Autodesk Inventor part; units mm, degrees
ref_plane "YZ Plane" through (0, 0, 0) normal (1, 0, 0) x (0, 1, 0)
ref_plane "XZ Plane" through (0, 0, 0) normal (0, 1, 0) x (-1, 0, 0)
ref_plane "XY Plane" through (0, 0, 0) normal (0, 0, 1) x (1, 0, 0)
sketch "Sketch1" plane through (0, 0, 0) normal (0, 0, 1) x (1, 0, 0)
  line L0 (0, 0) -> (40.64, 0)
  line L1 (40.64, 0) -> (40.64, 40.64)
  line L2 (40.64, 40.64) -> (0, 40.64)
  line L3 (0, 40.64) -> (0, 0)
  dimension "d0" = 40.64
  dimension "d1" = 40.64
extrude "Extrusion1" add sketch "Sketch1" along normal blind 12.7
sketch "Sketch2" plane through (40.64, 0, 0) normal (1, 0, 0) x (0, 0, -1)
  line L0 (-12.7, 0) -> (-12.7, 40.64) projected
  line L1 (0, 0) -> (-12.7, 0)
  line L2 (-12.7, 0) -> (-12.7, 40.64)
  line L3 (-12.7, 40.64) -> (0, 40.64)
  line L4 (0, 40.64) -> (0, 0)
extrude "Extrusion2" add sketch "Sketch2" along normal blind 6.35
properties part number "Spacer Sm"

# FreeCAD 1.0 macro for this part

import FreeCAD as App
import Part
import Sketcher

V = App.Vector
Q = App.Units.Quantity

doc = App.newDocument("Part")
body = doc.addObject("PartDesign::Body", "Body")

# Sketch on XY plane
sketch1 = body.newObject("Sketcher::SketchObject", "Sketch")
sketch1.AttachmentSupport = (doc.getObject("XY_Plane"), [""])
sketch1.MapMode = "FlatFace"
sketch1.addGeometry(Part.LineSegment(V(0, 41, 0), V(0, 0, 0)), False)
sketch1.addGeometry(Part.LineSegment(V(0, 0, 0), V(41, 0, 0)), False)
sketch1.addGeometry(Part.LineSegment(V(41, 0, 0), V(41, 41, 0)), False)
sketch1.addGeometry(Part.LineSegment(V(41, 41, 0), V(0, 41, 0)), False)
sketch1.addConstraint(Sketcher.Constraint("Coincident", 0, 2, 1, 1))
sketch1.addConstraint(Sketcher.Constraint("Coincident", 1, 2, 2, 1))
sketch1.addConstraint(Sketcher.Constraint("Coincident", 2, 2, 3, 1))
sketch1.addConstraint(Sketcher.Constraint("Coincident", 3, 2, 0, 1))
sketch1.addConstraint(Sketcher.Constraint("Vertical", 0))
sketch1.addConstraint(Sketcher.Constraint("Horizontal", 1))
sketch1.addConstraint(Sketcher.Constraint("Vertical", 2))
sketch1.addConstraint(Sketcher.Constraint("Horizontal", 3))
sketch1.addConstraint(Sketcher.Constraint("Coincident", 0, 2, -1, 1))
sketch1.addConstraint(Sketcher.Constraint("Equal", 3, 0))
sketch1.addConstraint(Sketcher.Constraint("DistanceX", 1, 1, 1, 2, Q("1.6 in")))
pad1 = body.newObject("PartDesign::Pad", "Pad")
pad1.Profile = sketch1
pad1.Length = Q("0.5 in")

# Sketch on YZ plane
sketch2 = body.newObject("Sketcher::SketchObject", "Sketch001")
sketch2.AttachmentSupport = (doc.getObject("YZ_Plane"), [""])
sketch2.MapMode = "FlatFace"
sketch2.AttachmentOffset = App.Placement(V(0, 0, 1.6 * 25.4), App.Rotation())
sketch2.addGeometry(Part.LineSegment(V(41, 13, 0), V(0, 13, 0)), False)
sketch2.addGeometry(Part.LineSegment(V(0, 13, 0), V(0, 0, 0)), False)
sketch2.addGeometry(Part.LineSegment(V(0, 0, 0), V(41, 0, 0)), False)
sketch2.addGeometry(Part.LineSegment(V(41, 0, 0), V(41, 13, 0)), False)
sketch2.addConstraint(Sketcher.Constraint("Coincident", 0, 2, 1, 1))
sketch2.addConstraint(Sketcher.Constraint("Coincident", 1, 2, 2, 1))
sketch2.addConstraint(Sketcher.Constraint("Coincident", 2, 2, 3, 1))
sketch2.addConstraint(Sketcher.Constraint("Coincident", 3, 2, 0, 1))
sketch2.addConstraint(Sketcher.Constraint("Horizontal", 0))
sketch2.addConstraint(Sketcher.Constraint("Vertical", 1))
sketch2.addConstraint(Sketcher.Constraint("Horizontal", 2))
sketch2.addConstraint(Sketcher.Constraint("Vertical", 3))
sketch2.addConstraint(Sketcher.Constraint("Coincident", 1, 2, -1, 1))
sketch2.addConstraint(Sketcher.Constraint("DistanceX", 0, 2, 0, 1, Q("1.6 in")))
sketch2.addConstraint(Sketcher.Constraint("DistanceY", 1, 2, 1, 1, Q("0.5 in")))
pad2 = body.newObject("PartDesign::Pad", "Pad001")
pad2.Profile = sketch2
pad2.Length = Q("0.25 in")

doc.recompute()
